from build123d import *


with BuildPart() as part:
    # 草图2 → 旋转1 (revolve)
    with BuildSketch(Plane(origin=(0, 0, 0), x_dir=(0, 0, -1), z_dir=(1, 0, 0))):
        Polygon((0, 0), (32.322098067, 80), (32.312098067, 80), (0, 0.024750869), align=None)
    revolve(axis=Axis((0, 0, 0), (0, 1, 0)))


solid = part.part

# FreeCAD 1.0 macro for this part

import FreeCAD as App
import Part
import Sketcher
from FreeCAD import Vector
Q = App.Units.Quantity


def add_polygon(sketch, points):
    """Adds a closed chain of lines whose ends are joined by coincident constraints."""
    first, n = sketch.GeometryCount, len(points)
    for a, b in zip(points, points[1:] + points[:1]):
        sketch.addGeometry(Part.LineSegment(App.Vector(*a, 0), App.Vector(*b, 0)), False)
    for i in range(n):
        sketch.addConstraint(Sketcher.Constraint("Coincident", first + i, 2, first + (i + 1) % n, 1))

doc = App.newDocument("Part")
body = doc.addObject("PartDesign::Body", "Body")

# Sketch on YZ plane
sketch1 = doc.addObject("Sketcher::SketchObject", "Sketch")
body.addObject(sketch1)
sketch1.AttachmentSupport = (doc.YZ_Plane, [""])
sketch1.MapMode = "FlatFace"
add_polygon(sketch1, [(0, 0), (80, -32.322098), (80, -32.312098), (0.024751, 0)])  # lines 0-3
sketch1.addConstraint([
    Sketcher.Constraint("Vertical", 1),
    Sketcher.Constraint("Horizontal", 3),
    Sketcher.Constraint("Coincident", 3, 2, -1, 1),
    Sketcher.Constraint("Parallel", 0, 2),
    Sketcher.Constraint("Angle", 0, Q("-22 deg")),
    Sketcher.Constraint("DistanceX", -1, 1, 0, 2, 80.0),
    Sketcher.Constraint("DistanceY", 1, 1, 1, 2, 0.01),
])
revolution = doc.addObject("PartDesign::Revolution", "Revolution")
body.addObject(revolution)
revolution.Profile = sketch1
revolution.ReferenceAxis = (sketch1, ["H_Axis"])
revolution.Angle = 360

doc.recompute()
